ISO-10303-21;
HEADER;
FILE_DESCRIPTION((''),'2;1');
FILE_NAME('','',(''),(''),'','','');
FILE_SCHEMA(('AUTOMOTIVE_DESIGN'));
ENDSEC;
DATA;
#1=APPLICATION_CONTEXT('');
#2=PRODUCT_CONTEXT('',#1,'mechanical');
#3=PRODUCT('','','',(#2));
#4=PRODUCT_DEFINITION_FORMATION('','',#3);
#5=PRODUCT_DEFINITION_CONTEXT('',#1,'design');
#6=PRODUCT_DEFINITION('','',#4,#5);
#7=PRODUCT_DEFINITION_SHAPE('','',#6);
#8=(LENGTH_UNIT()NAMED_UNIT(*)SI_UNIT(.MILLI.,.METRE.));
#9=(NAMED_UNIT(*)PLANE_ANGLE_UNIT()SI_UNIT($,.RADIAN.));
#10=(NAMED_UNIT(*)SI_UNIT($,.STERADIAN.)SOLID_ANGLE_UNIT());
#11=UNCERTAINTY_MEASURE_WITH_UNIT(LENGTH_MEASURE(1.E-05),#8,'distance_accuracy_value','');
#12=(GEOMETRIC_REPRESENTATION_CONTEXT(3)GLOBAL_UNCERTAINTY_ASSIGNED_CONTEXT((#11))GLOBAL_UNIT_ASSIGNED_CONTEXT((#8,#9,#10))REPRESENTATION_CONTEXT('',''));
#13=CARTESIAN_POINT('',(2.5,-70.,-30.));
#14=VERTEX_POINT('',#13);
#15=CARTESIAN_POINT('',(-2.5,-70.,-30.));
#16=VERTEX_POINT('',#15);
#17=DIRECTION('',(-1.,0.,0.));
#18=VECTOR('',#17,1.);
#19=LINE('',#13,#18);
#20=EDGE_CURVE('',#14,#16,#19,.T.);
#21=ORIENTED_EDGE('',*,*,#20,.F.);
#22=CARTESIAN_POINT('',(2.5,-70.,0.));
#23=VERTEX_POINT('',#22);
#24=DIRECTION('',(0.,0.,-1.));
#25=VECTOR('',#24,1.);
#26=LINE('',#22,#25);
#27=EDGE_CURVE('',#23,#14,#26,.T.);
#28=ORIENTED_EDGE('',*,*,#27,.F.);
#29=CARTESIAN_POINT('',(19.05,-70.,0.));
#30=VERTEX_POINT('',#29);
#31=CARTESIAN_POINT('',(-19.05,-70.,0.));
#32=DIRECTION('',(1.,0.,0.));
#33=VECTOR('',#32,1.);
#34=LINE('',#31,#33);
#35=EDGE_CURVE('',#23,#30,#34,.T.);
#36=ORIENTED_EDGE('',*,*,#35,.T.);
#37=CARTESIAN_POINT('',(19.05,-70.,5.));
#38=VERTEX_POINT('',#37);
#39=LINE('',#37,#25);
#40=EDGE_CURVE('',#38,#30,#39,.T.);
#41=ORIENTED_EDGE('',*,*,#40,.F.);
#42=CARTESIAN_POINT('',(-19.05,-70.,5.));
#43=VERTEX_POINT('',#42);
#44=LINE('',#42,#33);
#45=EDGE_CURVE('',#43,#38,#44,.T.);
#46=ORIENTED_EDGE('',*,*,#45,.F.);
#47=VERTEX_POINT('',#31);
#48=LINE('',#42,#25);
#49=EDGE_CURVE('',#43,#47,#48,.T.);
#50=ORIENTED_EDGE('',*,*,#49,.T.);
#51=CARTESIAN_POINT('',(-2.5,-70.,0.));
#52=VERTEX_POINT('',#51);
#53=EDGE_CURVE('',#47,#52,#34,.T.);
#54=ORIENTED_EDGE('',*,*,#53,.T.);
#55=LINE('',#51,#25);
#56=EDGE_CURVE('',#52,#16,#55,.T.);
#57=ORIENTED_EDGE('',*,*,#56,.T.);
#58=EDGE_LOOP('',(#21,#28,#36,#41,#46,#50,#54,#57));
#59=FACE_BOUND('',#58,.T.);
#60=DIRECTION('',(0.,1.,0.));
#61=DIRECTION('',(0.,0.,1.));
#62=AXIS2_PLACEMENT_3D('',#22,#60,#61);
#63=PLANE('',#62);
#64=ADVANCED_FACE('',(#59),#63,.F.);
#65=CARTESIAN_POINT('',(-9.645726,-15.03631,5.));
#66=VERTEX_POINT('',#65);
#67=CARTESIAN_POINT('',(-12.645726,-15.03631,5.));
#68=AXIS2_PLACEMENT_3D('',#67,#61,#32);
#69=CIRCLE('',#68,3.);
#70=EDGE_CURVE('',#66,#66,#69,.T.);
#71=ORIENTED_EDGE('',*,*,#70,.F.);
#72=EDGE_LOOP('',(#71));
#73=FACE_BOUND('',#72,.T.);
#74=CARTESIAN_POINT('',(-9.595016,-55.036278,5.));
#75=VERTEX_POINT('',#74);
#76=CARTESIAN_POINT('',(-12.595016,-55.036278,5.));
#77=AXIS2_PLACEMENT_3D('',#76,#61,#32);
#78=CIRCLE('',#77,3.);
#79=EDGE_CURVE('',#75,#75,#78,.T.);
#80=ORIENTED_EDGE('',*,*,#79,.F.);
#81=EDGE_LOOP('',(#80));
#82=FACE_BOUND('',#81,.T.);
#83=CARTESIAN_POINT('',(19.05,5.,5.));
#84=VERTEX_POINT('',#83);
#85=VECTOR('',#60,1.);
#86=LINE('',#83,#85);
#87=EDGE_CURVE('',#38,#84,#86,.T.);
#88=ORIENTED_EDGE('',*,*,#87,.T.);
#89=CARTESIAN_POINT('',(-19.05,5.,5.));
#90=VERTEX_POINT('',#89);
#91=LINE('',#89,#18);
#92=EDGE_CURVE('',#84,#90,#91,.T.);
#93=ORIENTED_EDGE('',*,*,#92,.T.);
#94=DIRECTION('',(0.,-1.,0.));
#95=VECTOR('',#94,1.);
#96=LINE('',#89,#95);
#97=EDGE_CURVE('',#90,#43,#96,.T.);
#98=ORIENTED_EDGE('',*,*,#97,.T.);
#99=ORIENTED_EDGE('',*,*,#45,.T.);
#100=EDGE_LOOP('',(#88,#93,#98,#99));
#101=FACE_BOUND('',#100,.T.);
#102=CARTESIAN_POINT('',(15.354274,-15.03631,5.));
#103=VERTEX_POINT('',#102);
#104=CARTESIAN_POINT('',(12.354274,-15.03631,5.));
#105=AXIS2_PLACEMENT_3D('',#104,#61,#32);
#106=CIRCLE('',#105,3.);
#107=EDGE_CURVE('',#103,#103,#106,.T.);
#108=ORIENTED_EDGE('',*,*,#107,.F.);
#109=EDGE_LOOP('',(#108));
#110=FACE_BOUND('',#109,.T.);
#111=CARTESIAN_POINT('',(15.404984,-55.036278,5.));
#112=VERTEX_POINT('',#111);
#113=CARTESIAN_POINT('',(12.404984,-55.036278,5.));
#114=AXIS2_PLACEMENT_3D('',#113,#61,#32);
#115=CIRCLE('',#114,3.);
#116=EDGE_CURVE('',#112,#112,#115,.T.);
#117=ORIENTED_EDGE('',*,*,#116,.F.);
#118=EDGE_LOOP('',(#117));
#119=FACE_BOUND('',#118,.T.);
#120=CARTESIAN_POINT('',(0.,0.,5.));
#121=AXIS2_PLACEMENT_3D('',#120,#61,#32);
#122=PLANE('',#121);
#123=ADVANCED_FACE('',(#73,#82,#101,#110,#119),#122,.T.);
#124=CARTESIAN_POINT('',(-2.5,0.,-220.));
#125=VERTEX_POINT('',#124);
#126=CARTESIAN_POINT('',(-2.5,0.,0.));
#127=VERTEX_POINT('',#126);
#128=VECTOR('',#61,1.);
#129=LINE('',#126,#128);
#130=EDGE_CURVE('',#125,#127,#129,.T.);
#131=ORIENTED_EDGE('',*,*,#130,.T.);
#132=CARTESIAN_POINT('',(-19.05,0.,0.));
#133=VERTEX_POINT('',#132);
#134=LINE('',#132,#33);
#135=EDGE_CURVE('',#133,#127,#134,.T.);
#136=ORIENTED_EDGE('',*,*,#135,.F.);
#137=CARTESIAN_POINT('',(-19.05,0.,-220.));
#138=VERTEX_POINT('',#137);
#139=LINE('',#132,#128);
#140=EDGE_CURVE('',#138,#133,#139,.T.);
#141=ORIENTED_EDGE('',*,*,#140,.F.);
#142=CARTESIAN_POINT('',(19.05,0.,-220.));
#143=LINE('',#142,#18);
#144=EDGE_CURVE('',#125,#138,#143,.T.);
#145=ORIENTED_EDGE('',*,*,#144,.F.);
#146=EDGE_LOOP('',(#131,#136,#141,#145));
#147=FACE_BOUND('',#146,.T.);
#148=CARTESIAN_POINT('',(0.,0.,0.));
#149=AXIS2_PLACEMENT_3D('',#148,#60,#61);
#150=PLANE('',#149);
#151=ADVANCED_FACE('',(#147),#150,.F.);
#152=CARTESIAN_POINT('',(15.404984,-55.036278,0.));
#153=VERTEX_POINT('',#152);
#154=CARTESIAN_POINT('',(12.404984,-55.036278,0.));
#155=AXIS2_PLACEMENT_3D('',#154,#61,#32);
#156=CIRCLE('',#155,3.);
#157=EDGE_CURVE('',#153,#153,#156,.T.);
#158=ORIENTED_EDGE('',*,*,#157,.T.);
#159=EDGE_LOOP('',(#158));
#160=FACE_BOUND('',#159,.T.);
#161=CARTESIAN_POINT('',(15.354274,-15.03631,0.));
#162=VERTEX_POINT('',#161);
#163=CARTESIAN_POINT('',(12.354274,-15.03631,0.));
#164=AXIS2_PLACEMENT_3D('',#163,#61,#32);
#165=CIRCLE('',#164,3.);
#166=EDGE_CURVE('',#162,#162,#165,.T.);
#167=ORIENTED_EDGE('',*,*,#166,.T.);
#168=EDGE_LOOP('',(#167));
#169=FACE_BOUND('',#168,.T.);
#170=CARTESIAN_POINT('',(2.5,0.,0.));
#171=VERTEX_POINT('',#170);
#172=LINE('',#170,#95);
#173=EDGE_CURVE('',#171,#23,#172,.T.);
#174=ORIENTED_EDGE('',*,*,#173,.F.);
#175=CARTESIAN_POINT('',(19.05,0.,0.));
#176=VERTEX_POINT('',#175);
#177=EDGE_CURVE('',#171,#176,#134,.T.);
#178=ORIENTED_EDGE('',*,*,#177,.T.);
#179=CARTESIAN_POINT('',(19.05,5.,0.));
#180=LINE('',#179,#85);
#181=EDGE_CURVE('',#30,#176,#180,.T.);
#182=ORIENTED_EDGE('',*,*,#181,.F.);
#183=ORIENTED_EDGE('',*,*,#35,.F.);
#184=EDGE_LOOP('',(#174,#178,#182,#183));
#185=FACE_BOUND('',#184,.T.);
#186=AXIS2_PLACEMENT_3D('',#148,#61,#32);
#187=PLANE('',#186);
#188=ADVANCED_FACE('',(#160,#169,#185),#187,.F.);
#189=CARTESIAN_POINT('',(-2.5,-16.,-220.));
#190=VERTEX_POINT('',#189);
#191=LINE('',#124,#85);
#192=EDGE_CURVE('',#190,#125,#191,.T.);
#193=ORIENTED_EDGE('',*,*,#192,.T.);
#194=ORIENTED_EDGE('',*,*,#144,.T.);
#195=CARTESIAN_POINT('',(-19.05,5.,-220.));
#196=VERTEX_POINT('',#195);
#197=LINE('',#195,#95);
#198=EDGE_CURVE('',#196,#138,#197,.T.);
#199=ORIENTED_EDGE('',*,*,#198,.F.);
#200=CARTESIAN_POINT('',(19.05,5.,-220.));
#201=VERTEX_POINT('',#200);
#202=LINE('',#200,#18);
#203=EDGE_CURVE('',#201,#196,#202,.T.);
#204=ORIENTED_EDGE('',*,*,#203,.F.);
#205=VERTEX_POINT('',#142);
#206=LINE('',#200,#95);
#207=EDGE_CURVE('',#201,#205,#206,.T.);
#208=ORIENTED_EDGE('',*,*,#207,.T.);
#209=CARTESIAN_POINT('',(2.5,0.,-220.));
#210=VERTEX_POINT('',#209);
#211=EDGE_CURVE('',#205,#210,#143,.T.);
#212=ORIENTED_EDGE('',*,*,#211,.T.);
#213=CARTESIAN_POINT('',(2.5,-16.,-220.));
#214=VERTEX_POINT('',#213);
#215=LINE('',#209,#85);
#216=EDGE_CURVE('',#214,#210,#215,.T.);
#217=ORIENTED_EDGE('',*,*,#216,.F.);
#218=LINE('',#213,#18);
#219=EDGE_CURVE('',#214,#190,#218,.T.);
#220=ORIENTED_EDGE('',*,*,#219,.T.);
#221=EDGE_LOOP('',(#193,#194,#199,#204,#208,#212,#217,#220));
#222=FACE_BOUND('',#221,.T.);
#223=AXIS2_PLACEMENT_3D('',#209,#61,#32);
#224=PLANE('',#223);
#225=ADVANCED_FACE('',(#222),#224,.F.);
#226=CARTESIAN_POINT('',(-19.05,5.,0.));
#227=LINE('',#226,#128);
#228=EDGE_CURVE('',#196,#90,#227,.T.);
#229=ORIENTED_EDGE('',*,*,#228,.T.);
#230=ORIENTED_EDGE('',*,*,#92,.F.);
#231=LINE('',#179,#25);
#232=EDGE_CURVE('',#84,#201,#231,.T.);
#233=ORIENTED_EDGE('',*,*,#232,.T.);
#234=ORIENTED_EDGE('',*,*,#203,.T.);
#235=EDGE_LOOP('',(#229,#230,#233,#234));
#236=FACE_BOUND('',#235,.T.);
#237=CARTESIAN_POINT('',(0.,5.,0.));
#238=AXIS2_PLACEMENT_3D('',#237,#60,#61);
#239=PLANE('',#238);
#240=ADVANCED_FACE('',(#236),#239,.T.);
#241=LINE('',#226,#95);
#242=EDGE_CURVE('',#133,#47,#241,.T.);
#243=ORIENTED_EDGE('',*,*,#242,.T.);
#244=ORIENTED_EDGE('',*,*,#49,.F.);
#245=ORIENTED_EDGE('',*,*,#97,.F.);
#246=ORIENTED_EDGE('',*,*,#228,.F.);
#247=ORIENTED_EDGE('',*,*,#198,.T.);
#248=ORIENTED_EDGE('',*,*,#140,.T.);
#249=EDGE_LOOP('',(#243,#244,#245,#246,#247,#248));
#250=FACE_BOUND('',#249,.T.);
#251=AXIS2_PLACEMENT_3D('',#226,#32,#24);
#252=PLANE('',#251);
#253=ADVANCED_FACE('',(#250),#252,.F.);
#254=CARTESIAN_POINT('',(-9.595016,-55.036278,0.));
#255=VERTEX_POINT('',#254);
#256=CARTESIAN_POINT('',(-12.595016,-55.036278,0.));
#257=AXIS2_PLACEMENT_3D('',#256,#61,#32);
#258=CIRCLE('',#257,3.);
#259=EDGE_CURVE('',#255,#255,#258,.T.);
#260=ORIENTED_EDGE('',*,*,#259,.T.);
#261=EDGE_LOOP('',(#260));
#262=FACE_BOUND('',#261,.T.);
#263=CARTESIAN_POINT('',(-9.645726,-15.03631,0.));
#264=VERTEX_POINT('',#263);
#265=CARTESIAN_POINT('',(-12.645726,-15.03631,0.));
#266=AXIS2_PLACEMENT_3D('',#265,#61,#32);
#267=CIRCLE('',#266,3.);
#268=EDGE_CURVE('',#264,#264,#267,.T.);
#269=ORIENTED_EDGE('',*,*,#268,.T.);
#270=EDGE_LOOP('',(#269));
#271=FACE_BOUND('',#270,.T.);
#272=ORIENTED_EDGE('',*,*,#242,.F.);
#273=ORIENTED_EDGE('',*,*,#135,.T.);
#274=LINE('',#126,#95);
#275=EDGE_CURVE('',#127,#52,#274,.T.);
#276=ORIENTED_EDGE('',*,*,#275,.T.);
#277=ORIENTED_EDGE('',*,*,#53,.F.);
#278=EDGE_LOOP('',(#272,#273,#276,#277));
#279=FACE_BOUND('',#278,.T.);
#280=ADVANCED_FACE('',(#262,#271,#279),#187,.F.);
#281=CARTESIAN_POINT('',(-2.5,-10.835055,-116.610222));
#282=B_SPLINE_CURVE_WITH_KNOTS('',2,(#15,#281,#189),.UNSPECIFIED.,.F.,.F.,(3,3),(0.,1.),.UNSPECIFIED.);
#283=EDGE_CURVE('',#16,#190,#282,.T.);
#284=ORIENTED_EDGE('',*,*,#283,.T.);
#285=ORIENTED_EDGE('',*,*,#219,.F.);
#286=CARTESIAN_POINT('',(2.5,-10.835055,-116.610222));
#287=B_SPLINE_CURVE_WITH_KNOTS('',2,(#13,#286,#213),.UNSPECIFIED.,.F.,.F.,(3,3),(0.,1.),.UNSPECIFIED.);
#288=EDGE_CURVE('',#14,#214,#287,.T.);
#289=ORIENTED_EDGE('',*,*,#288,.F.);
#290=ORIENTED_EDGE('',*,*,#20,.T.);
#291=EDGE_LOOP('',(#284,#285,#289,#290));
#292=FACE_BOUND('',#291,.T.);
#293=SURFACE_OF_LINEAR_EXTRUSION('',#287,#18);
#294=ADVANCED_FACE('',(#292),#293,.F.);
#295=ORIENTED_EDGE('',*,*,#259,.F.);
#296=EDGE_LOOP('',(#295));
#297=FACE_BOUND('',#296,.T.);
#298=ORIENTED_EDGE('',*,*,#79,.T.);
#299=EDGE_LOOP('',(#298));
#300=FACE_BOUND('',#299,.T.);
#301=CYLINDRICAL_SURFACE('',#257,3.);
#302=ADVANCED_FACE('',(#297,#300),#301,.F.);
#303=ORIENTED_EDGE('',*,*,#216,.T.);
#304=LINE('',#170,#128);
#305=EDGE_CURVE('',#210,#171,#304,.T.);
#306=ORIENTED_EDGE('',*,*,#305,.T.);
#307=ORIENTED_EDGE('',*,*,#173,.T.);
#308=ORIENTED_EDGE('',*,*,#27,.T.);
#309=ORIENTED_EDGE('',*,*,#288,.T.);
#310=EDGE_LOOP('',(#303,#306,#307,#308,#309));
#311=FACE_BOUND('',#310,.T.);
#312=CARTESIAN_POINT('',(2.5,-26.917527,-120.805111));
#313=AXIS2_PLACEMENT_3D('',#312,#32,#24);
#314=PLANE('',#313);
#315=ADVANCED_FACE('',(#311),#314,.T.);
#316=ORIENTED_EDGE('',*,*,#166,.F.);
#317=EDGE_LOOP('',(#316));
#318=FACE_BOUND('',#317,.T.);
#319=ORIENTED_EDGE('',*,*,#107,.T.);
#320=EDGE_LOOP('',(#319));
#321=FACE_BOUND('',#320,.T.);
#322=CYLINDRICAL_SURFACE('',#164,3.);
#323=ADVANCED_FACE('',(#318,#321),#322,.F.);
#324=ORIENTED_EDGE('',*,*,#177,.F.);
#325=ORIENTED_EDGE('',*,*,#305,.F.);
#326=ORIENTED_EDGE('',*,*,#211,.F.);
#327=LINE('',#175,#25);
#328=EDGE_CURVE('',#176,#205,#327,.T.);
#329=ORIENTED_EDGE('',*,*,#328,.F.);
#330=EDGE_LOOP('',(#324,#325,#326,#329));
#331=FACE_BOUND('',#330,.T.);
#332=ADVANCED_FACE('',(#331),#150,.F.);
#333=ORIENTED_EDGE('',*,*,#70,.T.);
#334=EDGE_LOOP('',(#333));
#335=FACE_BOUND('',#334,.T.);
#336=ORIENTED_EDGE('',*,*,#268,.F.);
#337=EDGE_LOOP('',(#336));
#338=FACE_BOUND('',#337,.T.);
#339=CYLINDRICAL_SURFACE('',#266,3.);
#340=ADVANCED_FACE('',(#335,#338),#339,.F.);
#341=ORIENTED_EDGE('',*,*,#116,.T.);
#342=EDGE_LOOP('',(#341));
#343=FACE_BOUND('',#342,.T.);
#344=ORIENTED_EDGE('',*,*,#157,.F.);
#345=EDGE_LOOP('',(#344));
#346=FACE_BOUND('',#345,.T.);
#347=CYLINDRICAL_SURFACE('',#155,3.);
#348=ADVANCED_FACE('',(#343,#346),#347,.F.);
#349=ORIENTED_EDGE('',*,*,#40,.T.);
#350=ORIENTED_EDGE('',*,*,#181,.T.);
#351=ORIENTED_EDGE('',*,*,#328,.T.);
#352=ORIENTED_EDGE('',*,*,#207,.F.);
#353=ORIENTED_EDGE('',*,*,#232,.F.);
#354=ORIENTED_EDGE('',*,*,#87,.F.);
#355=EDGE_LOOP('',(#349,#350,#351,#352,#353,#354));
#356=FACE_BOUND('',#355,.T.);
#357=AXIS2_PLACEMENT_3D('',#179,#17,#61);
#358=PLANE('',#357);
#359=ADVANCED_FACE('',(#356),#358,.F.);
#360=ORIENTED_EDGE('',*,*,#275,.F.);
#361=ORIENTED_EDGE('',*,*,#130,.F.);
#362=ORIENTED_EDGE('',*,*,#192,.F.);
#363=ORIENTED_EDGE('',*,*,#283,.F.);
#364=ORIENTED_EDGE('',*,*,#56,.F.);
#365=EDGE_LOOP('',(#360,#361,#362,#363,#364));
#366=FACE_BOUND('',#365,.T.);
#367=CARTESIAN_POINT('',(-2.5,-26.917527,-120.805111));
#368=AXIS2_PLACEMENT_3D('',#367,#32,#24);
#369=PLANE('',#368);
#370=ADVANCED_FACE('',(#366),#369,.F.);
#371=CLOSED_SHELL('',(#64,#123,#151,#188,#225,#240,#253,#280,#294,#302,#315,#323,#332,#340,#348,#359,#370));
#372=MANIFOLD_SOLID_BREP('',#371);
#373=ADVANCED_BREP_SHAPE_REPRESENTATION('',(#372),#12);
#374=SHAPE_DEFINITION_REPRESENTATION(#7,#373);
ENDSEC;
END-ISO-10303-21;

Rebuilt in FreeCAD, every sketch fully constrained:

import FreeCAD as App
import Part
import Sketcher
Q = App.Units.Quantity


def add_polygon(sketch, points):
    """Adds a closed chain of lines whose ends are joined by coincident constraints."""
    first, n = sketch.GeometryCount, len(points)
    for a, b in zip(points, points[1:] + points[:1]):
        sketch.addGeometry(Part.LineSegment(App.Vector(*a, 0), App.Vector(*b, 0)), False)
    for i in range(n):
        sketch.addConstraint(Sketcher.Constraint("Coincident", first + i, 2, first + (i + 1) % n, 1))

doc = App.newDocument("Part")
body = doc.addObject("PartDesign::Body", "Body")

sketch1 = doc.addObject("Sketcher::SketchObject", "Sketch")
body.addObject(sketch1)
sketch1.AttachmentSupport = (doc.YZ_Plane, [""])
sketch1.MapMode = "FlatFace"
sketch1.addGeometry([
    Part.LineSegment(App.Vector(0, -220, 0), App.Vector(0, 0, 0)),
    Part.LineSegment(App.Vector(0, 0, 0), App.Vector(-70, 0, 0)),
    Part.LineSegment(App.Vector(-70, 0, 0), App.Vector(-70, -30, 0)),
    Part.BSplineCurve([App.Vector(-70, -30, 0), App.Vector(-10.835055, -116.610222, 0), App.Vector(-16, -220, 0)], [3, 3], [0, 1], False, 2, [1, 1, 1], False),
    Part.LineSegment(App.Vector(-16, -220, 0), App.Vector(0, -220, 0)),
], False)
sketch1.addConstraint([
    Sketcher.Constraint("Block", 3),
    Sketcher.Constraint("Coincident", 0, 2, 1, 1),
    Sketcher.Constraint("Coincident", 1, 2, 2, 1),
    Sketcher.Constraint("Coincident", 2, 2, 3, 1),
    Sketcher.Constraint("Coincident", 3, 2, 4, 1),
    Sketcher.Constraint("Coincident", 4, 2, 0, 1),
    Sketcher.Constraint("Vertical", 0),
    Sketcher.Constraint("Horizontal", 1),
    Sketcher.Constraint("Vertical", 2),
    Sketcher.Constraint("Horizontal", 4),
    Sketcher.Constraint("Coincident", 0, 2, -1, 1),
])
pad1 = doc.addObject("PartDesign::Pad", "Pad")
body.addObject(pad1)
pad1.Profile = sketch1
pad1.Length = 5
pad1.Midplane = True

sketch2 = doc.addObject("Sketcher::SketchObject", "Sketch001")
body.addObject(sketch2)
sketch2.AttachmentSupport = (doc.XZ_Plane, [""])
sketch2.MapMode = "FlatFace"
add_polygon(sketch2, [(-19.05, -220), (-19.05, 0), (19.05, 0), (19.05, -220)])
sketch2.addConstraint([
    Sketcher.Constraint("Vertical", 0),
    Sketcher.Constraint("Horizontal", 1),
    Sketcher.Constraint("Vertical", 2),
    Sketcher.Constraint("Horizontal", 3),
    Sketcher.Constraint("Symmetric", 0, 2, 1, 2, -1, 1),
    Sketcher.Constraint("DistanceY", 0, 1, 0, 2, Q("220 mm")),
    Sketcher.Constraint("DistanceX", 1, 1, 1, 2, Q("38.1 mm")),
])
pad2 = doc.addObject("PartDesign::Pad", "Pad001")
body.addObject(pad2)
pad2.Profile = sketch2
pad2.Length = 5
pad2.Reversed = True

sketch3 = doc.addObject("Sketcher::SketchObject", "Sketch002")
body.addObject(sketch3)
sketch3.AttachmentSupport = (doc.XY_Plane, [""])
sketch3.MapMode = "FlatFace"
add_polygon(sketch3, [(-19.05, 5), (-19.05, -70), (19.05, -70), (19.05, 5)])
sketch3.addConstraint([
    Sketcher.Constraint("Vertical", 0),
    Sketcher.Constraint("Horizontal", 1),
    Sketcher.Constraint("Vertical", 2),
    Sketcher.Constraint("Horizontal", 3),
    Sketcher.Constraint("DistanceY", 0, 2, 0, 1, Q("75 mm")),
    Sketcher.Constraint("DistanceX", 1, 1, 1, 2, Q("38.1 mm")),
    Sketcher.Constraint("DistanceY", 0, 2, -1, 1, Q("70 mm")),
    Sketcher.Constraint("DistanceX", 0, 2, -1, 1, Q("19.05 mm")),
])
pad3 = doc.addObject("PartDesign::Pad", "Pad002")
body.addObject(pad3)
pad3.Profile = sketch3
pad3.Length = 5

sketch4 = doc.addObject("Sketcher::SketchObject", "Sketch003")
body.addObject(sketch4)
sketch4.AttachmentSupport = (doc.XY_Plane, [""])
sketch4.MapMode = "FlatFace"
sketch4.AttachmentOffset = App.Placement(App.Vector(0, 0, 5), App.Rotation())
sketch4.addGeometry([
    Part.Circle(App.Vector(-12.645726, -15.03631, 0), App.Vector(0, 0, 1), 3),
    Part.Circle(App.Vector(12.354274, -15.03631, 0), App.Vector(0, 0, 1), 3),
    Part.Circle(App.Vector(-12.595016, -55.036278, 0), App.Vector(0, 0, 1), 3),
    Part.Circle(App.Vector(12.404984, -55.036278, 0), App.Vector(0, 0, 1), 3),
], False)
sketch4.addConstraint([
    Sketcher.Constraint("Equal", 0, 1),
    Sketcher.Constraint("Equal", 1, 2),
    Sketcher.Constraint("Equal", 2, 3),
    Sketcher.Constraint("Horizontal", 0, 3, 1, 3),
    Sketcher.Constraint("Horizontal", 2, 3, 3, 3),
    Sketcher.Constraint("Diameter", 0, Q("6 mm")),
    Sketcher.Constraint("DistanceX", 0, 3, 1, 3, Q("25 mm")),
    Sketcher.Constraint("DistanceX", 2, 3, 3, 3, Q("25 mm")),
    Sketcher.Constraint("DistanceY", 0, 3, -1, 1, Q("15.03631 mm")),
    Sketcher.Constraint("DistanceX", 0, 3, 2, 3, Q("0.05071 mm")),
    Sketcher.Constraint("DistanceX", 0, 3, -1, 1, Q("12.645726 mm")),
    Sketcher.Constraint("DistanceY", 2, 3, -1, 1, Q("55.036278 mm")),
])
pocket1 = doc.addObject("PartDesign::Pocket", "Pocket")
body.addObject(pocket1)
pocket1.Profile = sketch4
pocket1.Length = 5

doc.recompute()
